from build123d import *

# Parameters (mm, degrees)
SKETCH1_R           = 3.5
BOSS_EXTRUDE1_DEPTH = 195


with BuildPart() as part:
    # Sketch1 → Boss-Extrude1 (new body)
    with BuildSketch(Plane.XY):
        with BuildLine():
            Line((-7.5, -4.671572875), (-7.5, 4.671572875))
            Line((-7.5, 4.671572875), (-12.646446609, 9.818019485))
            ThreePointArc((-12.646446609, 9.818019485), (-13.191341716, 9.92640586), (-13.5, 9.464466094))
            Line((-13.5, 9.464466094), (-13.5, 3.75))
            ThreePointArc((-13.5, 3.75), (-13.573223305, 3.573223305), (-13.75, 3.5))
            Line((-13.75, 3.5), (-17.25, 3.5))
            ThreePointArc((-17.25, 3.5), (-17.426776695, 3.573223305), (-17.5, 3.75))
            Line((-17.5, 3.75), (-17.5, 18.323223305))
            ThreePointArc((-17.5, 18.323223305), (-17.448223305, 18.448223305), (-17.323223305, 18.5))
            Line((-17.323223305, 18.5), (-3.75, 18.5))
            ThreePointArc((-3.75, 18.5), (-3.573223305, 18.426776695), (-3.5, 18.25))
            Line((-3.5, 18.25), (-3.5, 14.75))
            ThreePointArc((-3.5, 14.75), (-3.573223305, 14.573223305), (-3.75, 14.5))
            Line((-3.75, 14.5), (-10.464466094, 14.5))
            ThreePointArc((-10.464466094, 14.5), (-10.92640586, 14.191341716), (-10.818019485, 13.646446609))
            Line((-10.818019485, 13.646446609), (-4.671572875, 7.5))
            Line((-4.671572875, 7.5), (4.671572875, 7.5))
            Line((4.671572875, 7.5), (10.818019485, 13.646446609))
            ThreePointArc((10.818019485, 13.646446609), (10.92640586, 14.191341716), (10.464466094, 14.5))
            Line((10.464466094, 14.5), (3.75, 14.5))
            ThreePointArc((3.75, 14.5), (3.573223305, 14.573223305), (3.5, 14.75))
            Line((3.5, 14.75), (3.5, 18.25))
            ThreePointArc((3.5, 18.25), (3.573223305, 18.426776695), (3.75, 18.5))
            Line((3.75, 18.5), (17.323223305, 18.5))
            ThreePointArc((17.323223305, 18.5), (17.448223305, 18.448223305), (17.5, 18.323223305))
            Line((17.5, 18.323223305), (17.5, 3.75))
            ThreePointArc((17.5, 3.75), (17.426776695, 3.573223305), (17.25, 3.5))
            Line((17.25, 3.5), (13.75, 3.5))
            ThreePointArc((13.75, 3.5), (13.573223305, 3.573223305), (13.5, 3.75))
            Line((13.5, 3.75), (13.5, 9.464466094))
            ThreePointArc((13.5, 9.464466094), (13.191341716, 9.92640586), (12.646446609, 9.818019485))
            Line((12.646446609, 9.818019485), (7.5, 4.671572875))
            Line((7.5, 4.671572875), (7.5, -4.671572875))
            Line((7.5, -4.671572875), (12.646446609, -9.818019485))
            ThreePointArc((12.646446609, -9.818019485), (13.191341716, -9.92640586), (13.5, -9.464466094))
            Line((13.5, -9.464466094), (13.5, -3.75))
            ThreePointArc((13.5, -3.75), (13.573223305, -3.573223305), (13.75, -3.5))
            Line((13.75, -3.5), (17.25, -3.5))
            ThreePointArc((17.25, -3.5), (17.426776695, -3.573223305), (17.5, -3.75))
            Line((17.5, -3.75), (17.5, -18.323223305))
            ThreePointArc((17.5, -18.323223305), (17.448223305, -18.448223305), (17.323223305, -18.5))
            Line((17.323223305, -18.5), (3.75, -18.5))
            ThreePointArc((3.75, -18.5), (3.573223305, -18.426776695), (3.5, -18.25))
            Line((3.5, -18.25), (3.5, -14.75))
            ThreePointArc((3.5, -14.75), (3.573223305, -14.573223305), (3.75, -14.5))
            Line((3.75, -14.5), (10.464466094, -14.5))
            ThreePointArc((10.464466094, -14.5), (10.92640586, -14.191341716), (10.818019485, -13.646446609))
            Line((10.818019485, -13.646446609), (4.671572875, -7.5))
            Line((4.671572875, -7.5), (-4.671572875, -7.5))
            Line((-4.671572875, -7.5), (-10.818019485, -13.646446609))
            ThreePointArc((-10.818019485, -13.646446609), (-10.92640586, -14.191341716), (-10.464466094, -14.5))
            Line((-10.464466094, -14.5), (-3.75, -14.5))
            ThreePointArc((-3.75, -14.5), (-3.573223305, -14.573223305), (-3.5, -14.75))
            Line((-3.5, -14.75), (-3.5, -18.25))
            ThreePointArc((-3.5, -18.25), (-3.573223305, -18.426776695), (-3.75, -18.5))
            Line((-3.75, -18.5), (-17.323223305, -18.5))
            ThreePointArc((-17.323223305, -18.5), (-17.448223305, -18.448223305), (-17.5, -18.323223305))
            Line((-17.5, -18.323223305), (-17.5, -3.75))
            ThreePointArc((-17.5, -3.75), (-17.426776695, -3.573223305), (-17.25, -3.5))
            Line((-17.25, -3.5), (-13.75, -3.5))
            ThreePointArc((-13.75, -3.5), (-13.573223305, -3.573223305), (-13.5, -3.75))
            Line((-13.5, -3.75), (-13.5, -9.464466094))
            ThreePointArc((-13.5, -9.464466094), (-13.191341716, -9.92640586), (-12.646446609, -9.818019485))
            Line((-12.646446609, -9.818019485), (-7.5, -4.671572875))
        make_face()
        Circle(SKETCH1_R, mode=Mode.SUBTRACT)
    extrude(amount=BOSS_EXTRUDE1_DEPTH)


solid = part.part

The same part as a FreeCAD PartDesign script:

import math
import FreeCAD as App
import Part
import Sketcher
from FreeCAD import Vector

doc = App.newDocument("Part")
params = doc.addObject("Spreadsheet::Sheet", "Params")
for row, (alias, value) in enumerate([
    ("sketch1_diameter", "7 mm"),
    ("sketch1_radius", "0.5 mm"),
    ("sketch1_radius2", "0.25 mm"),
    ("sketch1_width", "3.5 mm"),
    ("pad1_length", "195 mm"),
], start=1):
    params.set(f"A{row}", alias)
    params.set(f"B{row}", "=" + value)
    params.setAlias(f"B{row}", alias)

body = doc.addObject("PartDesign::Body", "Body")

# Sketch on XY plane
sketch1 = body.newObject("Sketcher::SketchObject", "Sketch")
sketch1.AttachmentSupport = (doc.getObject("XY_Plane"), [""])
sketch1.MapMode = "FlatFace"
sketch1.addGeometry(Part.LineSegment(Vector(-7.5, 4.67, 0), Vector(-7.5, -4.67, 0)), False)
sketch1.addGeometry(Part.LineSegment(Vector(-7.5, -4.67, 0), Vector(-12.65, -9.82, 0)), False)
sketch1.addGeometry(Part.ArcOfCircle(Part.Circle(Vector(-13, -9.46, 0), Vector(0, 0, 1), 0.5), math.radians(-180), math.radians(-45)), False)
sketch1.addGeometry(Part.LineSegment(Vector(-13.5, -9.46, 0), Vector(-13.5, -3.75, 0)), False)
sketch1.addGeometry(Part.ArcOfCircle(Part.Circle(Vector(-13.75, -3.75, 0), Vector(0, 0, 1), 0.25), math.radians(0), math.radians(90)), False)
sketch1.addGeometry(Part.LineSegment(Vector(-13.75, -3.5, 0), Vector(-17.25, -3.5, 0)), False)
sketch1.addGeometry(Part.ArcOfCircle(Part.Circle(Vector(-17.25, -3.75, 0), Vector(0, 0, 1), 0.25), math.radians(90), math.radians(180)), False)
sketch1.addGeometry(Part.LineSegment(Vector(-17.5, -3.75, 0), Vector(-17.5, -18.32, 0)), False)
sketch1.addGeometry(Part.ArcOfCircle(Part.Circle(Vector(-17.32, -18.32, 0), Vector(0, 0, 1), 0.18), math.radians(180), math.radians(270)), False)
sketch1.addGeometry(Part.LineSegment(Vector(-17.32, -18.5, 0), Vector(-3.75, -18.5, 0)), False)
sketch1.addGeometry(Part.ArcOfCircle(Part.Circle(Vector(-3.75, -18.25, 0), Vector(0, 0, 1), 0.25), math.radians(-90), math.radians(0)), False)
sketch1.addGeometry(Part.LineSegment(Vector(-3.5, -18.25, 0), Vector(-3.5, -14.75, 0)), False)
sketch1.addGeometry(Part.ArcOfCircle(Part.Circle(Vector(-3.75, -14.75, 0), Vector(0, 0, 1), 0.25), math.radians(0), math.radians(90)), False)
sketch1.addGeometry(Part.LineSegment(Vector(-3.75, -14.5, 0), Vector(-10.46, -14.5, 0)), False)
sketch1.addGeometry(Part.ArcOfCircle(Part.Circle(Vector(-10.46, -14, 0), Vector(0, 0, 1), 0.5), math.radians(135), math.radians(270)), False)
sketch1.addGeometry(Part.LineSegment(Vector(-10.82, -13.65, 0), Vector(-4.67, -7.5, 0)), False)
sketch1.addGeometry(Part.LineSegment(Vector(-4.67, -7.5, 0), Vector(4.67, -7.5, 0)), False)
sketch1.addGeometry(Part.LineSegment(Vector(4.67, -7.5, 0), Vector(10.82, -13.65, 0)), False)
sketch1.addGeometry(Part.ArcOfCircle(Part.Circle(Vector(10.46, -14, 0), Vector(0, 0, 1), 0.5), math.radians(-90), math.radians(45)), False)
sketch1.addGeometry(Part.LineSegment(Vector(10.46, -14.5, 0), Vector(3.75, -14.5, 0)), False)
sketch1.addGeometry(Part.ArcOfCircle(Part.Circle(Vector(3.75, -14.75, 0), Vector(0, 0, 1), 0.25), math.radians(90), math.radians(180)), False)
sketch1.addGeometry(Part.LineSegment(Vector(3.5, -14.75, 0), Vector(3.5, -18.25, 0)), False)
sketch1.addGeometry(Part.ArcOfCircle(Part.Circle(Vector(3.75, -18.25, 0), Vector(0, 0, 1), 0.25), math.radians(-180), math.radians(-90)), False)
sketch1.addGeometry(Part.LineSegment(Vector(3.75, -18.5, 0), Vector(17.32, -18.5, 0)), False)
sketch1.addGeometry(Part.ArcOfCircle(Part.Circle(Vector(17.32, -18.32, 0), Vector(0, 0, 1), 0.18), math.radians(-90), math.radians(0)), False)
sketch1.addGeometry(Part.LineSegment(Vector(17.5, -18.32, 0), Vector(17.5, -3.75, 0)), False)
sketch1.addGeometry(Part.ArcOfCircle(Part.Circle(Vector(17.25, -3.75, 0), Vector(0, 0, 1), 0.25), math.radians(0), math.radians(90)), False)
sketch1.addGeometry(Part.LineSegment(Vector(17.25, -3.5, 0), Vector(13.75, -3.5, 0)), False)
sketch1.addGeometry(Part.ArcOfCircle(Part.Circle(Vector(13.75, -3.75, 0), Vector(0, 0, 1), 0.25), math.radians(90), math.radians(180)), False)
sketch1.addGeometry(Part.LineSegment(Vector(13.5, -3.75, 0), Vector(13.5, -9.46, 0)), False)
sketch1.addGeometry(Part.ArcOfCircle(Part.Circle(Vector(13, -9.46, 0), Vector(0, 0, 1), 0.5), math.radians(-135), math.radians(0)), False)
sketch1.addGeometry(Part.LineSegment(Vector(12.65, -9.82, 0), Vector(7.5, -4.67, 0)), False)
sketch1.addGeometry(Part.LineSegment(Vector(7.5, -4.67, 0), Vector(7.5, 4.67, 0)), False)
sketch1.addGeometry(Part.LineSegment(Vector(7.5, 4.67, 0), Vector(12.65, 9.82, 0)), False)
sketch1.addGeometry(Part.ArcOfCircle(Part.Circle(Vector(13, 9.46, 0), Vector(0, 0, 1), 0.5), math.radians(0), math.radians(135)), False)
sketch1.addGeometry(Part.LineSegment(Vector(13.5, 9.46, 0), Vector(13.5, 3.75, 0)), False)
sketch1.addGeometry(Part.ArcOfCircle(Part.Circle(Vector(13.75, 3.75, 0), Vector(0, 0, 1), 0.25), math.radians(-180), math.radians(-90)), False)
sketch1.addGeometry(Part.LineSegment(Vector(13.75, 3.5, 0), Vector(17.25, 3.5, 0)), False)
sketch1.addGeometry(Part.ArcOfCircle(Part.Circle(Vector(17.25, 3.75, 0), Vector(0, 0, 1), 0.25), math.radians(-90), math.radians(0)), False)
sketch1.addGeometry(Part.LineSegment(Vector(17.5, 3.75, 0), Vector(17.5, 18.32, 0)), False)
sketch1.addGeometry(Part.ArcOfCircle(Part.Circle(Vector(17.32, 18.32, 0), Vector(0, 0, 1), 0.18), math.radians(0), math.radians(90)), False)
sketch1.addGeometry(Part.LineSegment(Vector(17.32, 18.5, 0), Vector(3.75, 18.5, 0)), False)
sketch1.addGeometry(Part.ArcOfCircle(Part.Circle(Vector(3.75, 18.25, 0), Vector(0, 0, 1), 0.25), math.radians(90), math.radians(180)), False)
sketch1.addGeometry(Part.LineSegment(Vector(3.5, 18.25, 0), Vector(3.5, 14.75, 0)), False)
sketch1.addGeometry(Part.ArcOfCircle(Part.Circle(Vector(3.75, 14.75, 0), Vector(0, 0, 1), 0.25), math.radians(-180), math.radians(-90)), False)
sketch1.addGeometry(Part.LineSegment(Vector(3.75, 14.5, 0), Vector(10.46, 14.5, 0)), False)
sketch1.addGeometry(Part.ArcOfCircle(Part.Circle(Vector(10.46, 14, 0), Vector(0, 0, 1), 0.5), math.radians(-45), math.radians(90)), False)
sketch1.addGeometry(Part.LineSegment(Vector(10.82, 13.65, 0), Vector(4.67, 7.5, 0)), False)
sketch1.addGeometry(Part.LineSegment(Vector(4.67, 7.5, 0), Vector(-4.67, 7.5, 0)), False)
sketch1.addGeometry(Part.LineSegment(Vector(-4.67, 7.5, 0), Vector(-10.82, 13.65, 0)), False)
sketch1.addGeometry(Part.ArcOfCircle(Part.Circle(Vector(-10.46, 14, 0), Vector(0, 0, 1), 0.5), math.radians(90), math.radians(225)), False)
sketch1.addGeometry(Part.LineSegment(Vector(-10.46, 14.5, 0), Vector(-3.75, 14.5, 0)), False)
sketch1.addGeometry(Part.ArcOfCircle(Part.Circle(Vector(-3.75, 14.75, 0), Vector(0, 0, 1), 0.25), math.radians(-90), math.radians(0)), False)
sketch1.addGeometry(Part.LineSegment(Vector(-3.5, 14.75, 0), Vector(-3.5, 18.25, 0)), False)
sketch1.addGeometry(Part.ArcOfCircle(Part.Circle(Vector(-3.75, 18.25, 0), Vector(0, 0, 1), 0.25), math.radians(0), math.radians(90)), False)
sketch1.addGeometry(Part.LineSegment(Vector(-3.75, 18.5, 0), Vector(-17.32, 18.5, 0)), False)
sketch1.addGeometry(Part.ArcOfCircle(Part.Circle(Vector(-17.32, 18.32, 0), Vector(0, 0, 1), 0.18), math.radians(90), math.radians(180)), False)
sketch1.addGeometry(Part.LineSegment(Vector(-17.5, 18.32, 0), Vector(-17.5, 3.75, 0)), False)
sketch1.addGeometry(Part.ArcOfCircle(Part.Circle(Vector(-17.25, 3.75, 0), Vector(0, 0, 1), 0.25), math.radians(-180), math.radians(-90)), False)
sketch1.addGeometry(Part.LineSegment(Vector(-17.25, 3.5, 0), Vector(-13.75, 3.5, 0)), False)
sketch1.addGeometry(Part.ArcOfCircle(Part.Circle(Vector(-13.75, 3.75, 0), Vector(0, 0, 1), 0.25), math.radians(-90), math.radians(0)), False)
sketch1.addGeometry(Part.LineSegment(Vector(-13.5, 3.75, 0), Vector(-13.5, 9.46, 0)), False)
sketch1.addGeometry(Part.ArcOfCircle(Part.Circle(Vector(-13, 9.46, 0), Vector(0, 0, 1), 0.5), math.radians(45), math.radians(180)), False)
sketch1.addGeometry(Part.LineSegment(Vector(-12.65, 9.82, 0), Vector(-7.5, 4.67, 0)), False)
sketch1.addGeometry(Part.Circle(Vector(0, 0, 0), Vector(0, 0, 1), 3.5), False)
sketch1.addConstraint(Sketcher.Constraint("Coincident", 0, 2, 1, 1))
sketch1.addConstraint(Sketcher.Constraint("Tangent", 1, 2, 2, 2))
sketch1.addConstraint(Sketcher.Constraint("Tangent", 2, 1, 3, 1))
sketch1.addConstraint(Sketcher.Constraint("Tangent", 3, 2, 4, 1))
sketch1.addConstraint(Sketcher.Constraint("Tangent", 4, 2, 5, 1))
sketch1.addConstraint(Sketcher.Constraint("Tangent", 5, 2, 6, 1))
sketch1.addConstraint(Sketcher.Constraint("Tangent", 6, 2, 7, 1))
sketch1.addConstraint(Sketcher.Constraint("Tangent", 7, 2, 8, 1))
sketch1.addConstraint(Sketcher.Constraint("Tangent", 8, 2, 9, 1))
sketch1.addConstraint(Sketcher.Constraint("Tangent", 9, 2, 10, 1))
sketch1.addConstraint(Sketcher.Constraint("Tangent", 10, 2, 11, 1))
sketch1.addConstraint(Sketcher.Constraint("Tangent", 11, 2, 12, 1))
sketch1.addConstraint(Sketcher.Constraint("Tangent", 12, 2, 13, 1))
sketch1.addConstraint(Sketcher.Constraint("Tangent", 13, 2, 14, 2))
sketch1.addConstraint(Sketcher.Constraint("Tangent", 14, 1, 15, 1))
sketch1.addConstraint(Sketcher.Constraint("Coincident", 15, 2, 16, 1))
sketch1.addConstraint(Sketcher.Constraint("Coincident", 16, 2, 17, 1))
sketch1.addConstraint(Sketcher.Constraint("Tangent", 17, 2, 18, 2))
sketch1.addConstraint(Sketcher.Constraint("Tangent", 18, 1, 19, 1))
sketch1.addConstraint(Sketcher.Constraint("Tangent", 19, 2, 20, 1))
sketch1.addConstraint(Sketcher.Constraint("Tangent", 20, 2, 21, 1))
sketch1.addConstraint(Sketcher.Constraint("Tangent", 21, 2, 22, 1))
sketch1.addConstraint(Sketcher.Constraint("Tangent", 22, 2, 23, 1))
sketch1.addConstraint(Sketcher.Constraint("Tangent", 23, 2, 24, 1))
sketch1.addConstraint(Sketcher.Constraint("Tangent", 24, 2, 25, 1))
sketch1.addConstraint(Sketcher.Constraint("Tangent", 25, 2, 26, 1))
sketch1.addConstraint(Sketcher.Constraint("Tangent", 26, 2, 27, 1))
sketch1.addConstraint(Sketcher.Constraint("Tangent", 27, 2, 28, 1))
sketch1.addConstraint(Sketcher.Constraint("Tangent", 28, 2, 29, 1))
sketch1.addConstraint(Sketcher.Constraint("Tangent", 29, 2, 30, 2))
sketch1.addConstraint(Sketcher.Constraint("Tangent", 30, 1, 31, 1))
sketch1.addConstraint(Sketcher.Constraint("Coincident", 31, 2, 32, 1))
sketch1.addConstraint(Sketcher.Constraint("Coincident", 32, 2, 33, 1))
sketch1.addConstraint(Sketcher.Constraint("Tangent", 33, 2, 34, 2))
sketch1.addConstraint(Sketcher.Constraint("Tangent", 34, 1, 35, 1))
sketch1.addConstraint(Sketcher.Constraint("Tangent", 35, 2, 36, 1))
sketch1.addConstraint(Sketcher.Constraint("Tangent", 36, 2, 37, 1))
sketch1.addConstraint(Sketcher.Constraint("Tangent", 37, 2, 38, 1))
sketch1.addConstraint(Sketcher.Constraint("Tangent", 38, 2, 39, 1))
sketch1.addConstraint(Sketcher.Constraint("Tangent", 39, 2, 40, 1))
sketch1.addConstraint(Sketcher.Constraint("Tangent", 40, 2, 41, 1))
sketch1.addConstraint(Sketcher.Constraint("Tangent", 41, 2, 42, 1))
sketch1.addConstraint(Sketcher.Constraint("Tangent", 42, 2, 43, 1))
sketch1.addConstraint(Sketcher.Constraint("Tangent", 43, 2, 44, 1))
sketch1.addConstraint(Sketcher.Constraint("Tangent", 44, 2, 45, 1))
sketch1.addConstraint(Sketcher.Constraint("Tangent", 45, 2, 46, 2))
sketch1.addConstraint(Sketcher.Constraint("Tangent", 46, 1, 47, 1))
sketch1.addConstraint(Sketcher.Constraint("Coincident", 47, 2, 48, 1))
sketch1.addConstraint(Sketcher.Constraint("Coincident", 48, 2, 49, 1))
sketch1.addConstraint(Sketcher.Constraint("Tangent", 49, 2, 50, 2))
sketch1.addConstraint(Sketcher.Constraint("Tangent", 50, 1, 51, 1))
sketch1.addConstraint(Sketcher.Constraint("Tangent", 51, 2, 52, 1))
sketch1.addConstraint(Sketcher.Constraint("Tangent", 52, 2, 53, 1))
sketch1.addConstraint(Sketcher.Constraint("Tangent", 53, 2, 54, 1))
sketch1.addConstraint(Sketcher.Constraint("Tangent", 54, 2, 55, 1))
sketch1.addConstraint(Sketcher.Constraint("Tangent", 55, 2, 56, 1))
sketch1.addConstraint(Sketcher.Constraint("Tangent", 56, 2, 57, 1))
sketch1.addConstraint(Sketcher.Constraint("Tangent", 57, 2, 58, 1))
sketch1.addConstraint(Sketcher.Constraint("Tangent", 58, 2, 59, 1))
sketch1.addConstraint(Sketcher.Constraint("Tangent", 59, 2, 60, 1))
sketch1.addConstraint(Sketcher.Constraint("Tangent", 60, 2, 61, 1))
sketch1.addConstraint(Sketcher.Constraint("Tangent", 61, 2, 62, 2))
sketch1.addConstraint(Sketcher.Constraint("Tangent", 62, 1, 63, 1))
sketch1.addConstraint(Sketcher.Constraint("Coincident", 63, 2, 0, 1))
sketch1.addConstraint(Sketcher.Constraint("Vertical", 0))
sketch1.addConstraint(Sketcher.Constraint("Vertical", 3))
sketch1.addConstraint(Sketcher.Constraint("Horizontal", 5))
sketch1.addConstraint(Sketcher.Constraint("Vertical", 7))
sketch1.addConstraint(Sketcher.Constraint("Horizontal", 9))
sketch1.addConstraint(Sketcher.Constraint("Vertical", 11))
sketch1.addConstraint(Sketcher.Constraint("Horizontal", 13))
sketch1.addConstraint(Sketcher.Constraint("Horizontal", 16))
sketch1.addConstraint(Sketcher.Constraint("Horizontal", 19))
sketch1.addConstraint(Sketcher.Constraint("Vertical", 21))
sketch1.addConstraint(Sketcher.Constraint("Horizontal", 23))
sketch1.addConstraint(Sketcher.Constraint("Vertical", 25))
sketch1.addConstraint(Sketcher.Constraint("Horizontal", 27))
sketch1.addConstraint(Sketcher.Constraint("Vertical", 29))
sketch1.addConstraint(Sketcher.Constraint("Vertical", 32))
sketch1.addConstraint(Sketcher.Constraint("Vertical", 35))
sketch1.addConstraint(Sketcher.Constraint("Horizontal", 37))
sketch1.addConstraint(Sketcher.Constraint("Vertical", 39))
sketch1.addConstraint(Sketcher.Constraint("Horizontal", 41))
sketch1.addConstraint(Sketcher.Constraint("Vertical", 43))
sketch1.addConstraint(Sketcher.Constraint("Horizontal", 45))
sketch1.addConstraint(Sketcher.Constraint("Horizontal", 48))
sketch1.addConstraint(Sketcher.Constraint("Horizontal", 51))
sketch1.addConstraint(Sketcher.Constraint("Vertical", 53))
sketch1.addConstraint(Sketcher.Constraint("Horizontal", 55))
sketch1.addConstraint(Sketcher.Constraint("Vertical", 57))
sketch1.addConstraint(Sketcher.Constraint("Horizontal", 59))
sketch1.addConstraint(Sketcher.Constraint("Vertical", 61))
sketch1.addConstraint(Sketcher.Constraint("Coincident", 64, 3, -1, 1))
sketch1.addConstraint(Sketcher.Constraint("Equal", 4, 6))
sketch1.addConstraint(Sketcher.Constraint("Equal", 6, 10))
sketch1.addConstraint(Sketcher.Constraint("Equal", 10, 12))
sketch1.addConstraint(Sketcher.Constraint("Equal", 2, 14))
sketch1.addConstraint(Sketcher.Constraint("Equal", 14, 18))
sketch1.addConstraint(Sketcher.Constraint("Equal", 12, 20))
sketch1.addConstraint(Sketcher.Constraint("Equal", 20, 22))
sketch1.addConstraint(Sketcher.Constraint("Equal", 8, 24))
sketch1.addConstraint(Sketcher.Constraint("Equal", 22, 26))
sketch1.addConstraint(Sketcher.Constraint("Equal", 26, 28))
sketch1.addConstraint(Sketcher.Constraint("Equal", 18, 30))
sketch1.addConstraint(Sketcher.Constraint("Equal", 30, 34))
sketch1.addConstraint(Sketcher.Constraint("Equal", 28, 36))
sketch1.addConstraint(Sketcher.Constraint("Equal", 36, 38))
sketch1.addConstraint(Sketcher.Constraint("Equal", 24, 40))
sketch1.addConstraint(Sketcher.Constraint("Equal", 38, 42))
sketch1.addConstraint(Sketcher.Constraint("Equal", 42, 44))
sketch1.addConstraint(Sketcher.Constraint("Equal", 34, 46))
sketch1.addConstraint(Sketcher.Constraint("Equal", 46, 50))
sketch1.addConstraint(Sketcher.Constraint("Equal", 44, 52))
sketch1.addConstraint(Sketcher.Constraint("Equal", 52, 54))
sketch1.addConstraint(Sketcher.Constraint("Equal", 40, 56))
sketch1.addConstraint(Sketcher.Constraint("Equal", 54, 58))
sketch1.addConstraint(Sketcher.Constraint("Equal", 58, 60))
sketch1.addConstraint(Sketcher.Constraint("Equal", 50, 62))
sketch1.addConstraint(Sketcher.Constraint("Symmetric", 2, 3, 34, 3, -1, 1))
sketch1.addConstraint(Sketcher.Constraint("Symmetric", 6, 3, 38, 3, -1, 1))
sketch1.addConstraint(Sketcher.Constraint("Symmetric", 10, 3, 42, 3, -1, 1))
sketch1.addConstraint(Sketcher.Constraint("Symmetric", 14, 3, 46, 3, -1, 1))
sketch1.addConstraint(Sketcher.Constraint("Symmetric", 18, 3, 50, 3, -1, 1))
sketch1.addConstraint(Sketcher.Constraint("Symmetric", 22, 3, 54, 3, -1, 1))
sketch1.addConstraint(Sketcher.Constraint("Symmetric", 26, 3, 58, 3, -1, 1))
sketch1.addConstraint(Sketcher.Constraint("Symmetric", 30, 3, 62, 3, -1, 1))
sketch1.addConstraint(Sketcher.Constraint("Symmetric", 0, 2, 32, 2, -1, 1))
sketch1.addConstraint(Sketcher.Constraint("Symmetric", 15, 2, 47, 2, -1, 1))
sketch1.addConstraint(Sketcher.Constraint("Symmetric", 14, 3, 18, 3, -2))
sketch1.addConstraint(Sketcher.Constraint("Symmetric", 10, 3, 22, 3, -2))
sketch1.addConstraint(Sketcher.Constraint("Symmetric", 6, 3, 26, 3, -2))
sketch1.addConstraint(Sketcher.Constraint("Symmetric", 2, 3, 30, 3, -2))
sketch1.addConstraint(Sketcher.Constraint("Parallel", 1, 15))
sketch1.addConstraint(Sketcher.Constraint("Perpendicular", 15, 17))
sketch1.addConstraint(Sketcher.Constraint("Parallel", 17, 31))
sketch1.addConstraint(Sketcher.Constraint("Perpendicular", 47, 49))
sketch1.addConstraint(Sketcher.Constraint("Parallel", 49, 63))
sketch1.addConstraint(Sketcher.Constraint("Horizontal", 14, 1, 17, 2))
sketch1.addConstraint(Sketcher.Constraint("Equal", 48, 0))
sketch1.addConstraint(Sketcher.Constraint("Equal", 59, 11))
sketch1.addConstraint(Sketcher.Constraint("Diameter", 64, 7.0))
sketch1.addConstraint(Sketcher.Constraint("Radius", 2, 0.5))
sketch1.addConstraint(Sketcher.Constraint("Radius", 4, 0.25))
sketch1.addConstraint(Sketcher.Constraint("DistanceX", 5, 2, 5, 1, 3.5))
sketch1.addConstraint(Sketcher.Constraint("DistanceX", 2, 3, -1, 1, 13.0))
sketch1.addConstraint(Sketcher.Constraint("DistanceY", 14, 3, -1, 1, 14.0))
sketch1.addConstraint(Sketcher.Constraint("DistanceX", 0, 2, -1, 1, 7.5))
sketch1.addConstraint(Sketcher.Constraint("DistanceY", 4, 2, -1, 1, 3.5))
sketch1.addConstraint(Sketcher.Constraint("DistanceX", 10, 2, -1, 1, 3.5))
sketch1.addConstraint(Sketcher.Constraint("DistanceY", 15, 2, -1, 1, 7.5))
sketch1.addConstraint(Sketcher.Constraint("Radius", 8, 0.176777))
sketch1.addConstraint(Sketcher.Constraint("DistanceX", 13, 2, 13, 1, 6.714466))
sketch1.setExpression("Constraints[140]", "Params.sketch1_diameter")
sketch1.setExpression("Constraints[141]", "Params.sketch1_radius")
sketch1.setExpression("Constraints[142]", "Params.sketch1_radius2")
sketch1.setExpression("Constraints[143]", "Params.sketch1_width")
pad1 = body.newObject("PartDesign::Pad", "Pad")
pad1.Profile = sketch1
pad1.setExpression("Length", "Params.pad1_length")

doc.recompute()
